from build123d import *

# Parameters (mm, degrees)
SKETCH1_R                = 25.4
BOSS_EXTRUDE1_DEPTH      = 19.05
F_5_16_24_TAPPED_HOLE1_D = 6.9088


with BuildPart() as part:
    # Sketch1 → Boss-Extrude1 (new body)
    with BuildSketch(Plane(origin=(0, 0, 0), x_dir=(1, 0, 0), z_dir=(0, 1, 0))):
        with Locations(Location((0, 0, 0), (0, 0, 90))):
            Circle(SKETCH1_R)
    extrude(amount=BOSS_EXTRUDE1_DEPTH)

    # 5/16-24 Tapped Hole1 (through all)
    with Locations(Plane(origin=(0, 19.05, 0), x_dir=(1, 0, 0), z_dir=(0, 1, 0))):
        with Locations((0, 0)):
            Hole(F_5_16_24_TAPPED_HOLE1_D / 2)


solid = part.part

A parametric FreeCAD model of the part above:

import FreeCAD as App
import Part
import Sketcher
from FreeCAD import Vector
Q = App.Units.Quantity

doc = App.newDocument("Part")
params = doc.addObject("Spreadsheet::Sheet", "Params")
for row, (alias, value) in enumerate([
    ("sketch1_diameter", "2 in"),
    ("pad1_length", "0.75 in"),
    ("sketch2_diameter", "0.272 in"),
    ("hole_diameter", "0.272 in"),
], start=1):
    params.set(f"A{row}", alias)
    params.set(f"B{row}", "=" + value)
    params.setAlias(f"B{row}", alias)

body = doc.addObject("PartDesign::Body", "Body")

# Sketch on XZ plane
sketch1 = body.newObject("Sketcher::SketchObject", "Sketch")
sketch1.AttachmentSupport = (doc.getObject("XZ_Plane"), [""])
sketch1.MapMode = "FlatFace"
sketch1.addGeometry(Part.Circle(Vector(0, 0, 0), Vector(0, 0, 1), 25), False)
sketch1.addConstraint(Sketcher.Constraint("Coincident", 0, 3, -1, 1))
sketch1.addConstraint(Sketcher.Constraint("Diameter", 0, Q("2 in")))
sketch1.setExpression("Constraints[1]", "Params.sketch1_diameter")
pad1 = body.newObject("PartDesign::Pad", "Pad")
pad1.Profile = sketch1
pad1.setExpression("Length", "Params.pad1_length")
pad1.Reversed = True

# Sketch on XZ plane
sketch2 = body.newObject("Sketcher::SketchObject", "Sketch001")
sketch2.AttachmentSupport = (doc.getObject("XZ_Plane"), [""])
sketch2.MapMode = "FlatFace"
sketch2.AttachmentOffset = App.Placement(Vector(0, 0, -0.75 * 25.4), App.Rotation())
sketch2.addGeometry(Part.Circle(Vector(0, 0, 0), Vector(0, 0, 1), 3.5), False)
sketch2.addConstraint(Sketcher.Constraint("Coincident", 0, 3, -1, 1))
sketch2.addConstraint(Sketcher.Constraint("Diameter", 0, Q("0.272 in")))
sketch2.setExpression("Constraints[1]", "Params.sketch2_diameter")
doc.recompute()
hole = body.newObject("PartDesign::Hole", "Hole")
hole.Profile = sketch2
hole.ThreadType = "None"
hole.setExpression("Diameter", "Params.hole_diameter")
hole.DepthType = "ThroughAll"
hole.Reversed = True

doc.recompute()
